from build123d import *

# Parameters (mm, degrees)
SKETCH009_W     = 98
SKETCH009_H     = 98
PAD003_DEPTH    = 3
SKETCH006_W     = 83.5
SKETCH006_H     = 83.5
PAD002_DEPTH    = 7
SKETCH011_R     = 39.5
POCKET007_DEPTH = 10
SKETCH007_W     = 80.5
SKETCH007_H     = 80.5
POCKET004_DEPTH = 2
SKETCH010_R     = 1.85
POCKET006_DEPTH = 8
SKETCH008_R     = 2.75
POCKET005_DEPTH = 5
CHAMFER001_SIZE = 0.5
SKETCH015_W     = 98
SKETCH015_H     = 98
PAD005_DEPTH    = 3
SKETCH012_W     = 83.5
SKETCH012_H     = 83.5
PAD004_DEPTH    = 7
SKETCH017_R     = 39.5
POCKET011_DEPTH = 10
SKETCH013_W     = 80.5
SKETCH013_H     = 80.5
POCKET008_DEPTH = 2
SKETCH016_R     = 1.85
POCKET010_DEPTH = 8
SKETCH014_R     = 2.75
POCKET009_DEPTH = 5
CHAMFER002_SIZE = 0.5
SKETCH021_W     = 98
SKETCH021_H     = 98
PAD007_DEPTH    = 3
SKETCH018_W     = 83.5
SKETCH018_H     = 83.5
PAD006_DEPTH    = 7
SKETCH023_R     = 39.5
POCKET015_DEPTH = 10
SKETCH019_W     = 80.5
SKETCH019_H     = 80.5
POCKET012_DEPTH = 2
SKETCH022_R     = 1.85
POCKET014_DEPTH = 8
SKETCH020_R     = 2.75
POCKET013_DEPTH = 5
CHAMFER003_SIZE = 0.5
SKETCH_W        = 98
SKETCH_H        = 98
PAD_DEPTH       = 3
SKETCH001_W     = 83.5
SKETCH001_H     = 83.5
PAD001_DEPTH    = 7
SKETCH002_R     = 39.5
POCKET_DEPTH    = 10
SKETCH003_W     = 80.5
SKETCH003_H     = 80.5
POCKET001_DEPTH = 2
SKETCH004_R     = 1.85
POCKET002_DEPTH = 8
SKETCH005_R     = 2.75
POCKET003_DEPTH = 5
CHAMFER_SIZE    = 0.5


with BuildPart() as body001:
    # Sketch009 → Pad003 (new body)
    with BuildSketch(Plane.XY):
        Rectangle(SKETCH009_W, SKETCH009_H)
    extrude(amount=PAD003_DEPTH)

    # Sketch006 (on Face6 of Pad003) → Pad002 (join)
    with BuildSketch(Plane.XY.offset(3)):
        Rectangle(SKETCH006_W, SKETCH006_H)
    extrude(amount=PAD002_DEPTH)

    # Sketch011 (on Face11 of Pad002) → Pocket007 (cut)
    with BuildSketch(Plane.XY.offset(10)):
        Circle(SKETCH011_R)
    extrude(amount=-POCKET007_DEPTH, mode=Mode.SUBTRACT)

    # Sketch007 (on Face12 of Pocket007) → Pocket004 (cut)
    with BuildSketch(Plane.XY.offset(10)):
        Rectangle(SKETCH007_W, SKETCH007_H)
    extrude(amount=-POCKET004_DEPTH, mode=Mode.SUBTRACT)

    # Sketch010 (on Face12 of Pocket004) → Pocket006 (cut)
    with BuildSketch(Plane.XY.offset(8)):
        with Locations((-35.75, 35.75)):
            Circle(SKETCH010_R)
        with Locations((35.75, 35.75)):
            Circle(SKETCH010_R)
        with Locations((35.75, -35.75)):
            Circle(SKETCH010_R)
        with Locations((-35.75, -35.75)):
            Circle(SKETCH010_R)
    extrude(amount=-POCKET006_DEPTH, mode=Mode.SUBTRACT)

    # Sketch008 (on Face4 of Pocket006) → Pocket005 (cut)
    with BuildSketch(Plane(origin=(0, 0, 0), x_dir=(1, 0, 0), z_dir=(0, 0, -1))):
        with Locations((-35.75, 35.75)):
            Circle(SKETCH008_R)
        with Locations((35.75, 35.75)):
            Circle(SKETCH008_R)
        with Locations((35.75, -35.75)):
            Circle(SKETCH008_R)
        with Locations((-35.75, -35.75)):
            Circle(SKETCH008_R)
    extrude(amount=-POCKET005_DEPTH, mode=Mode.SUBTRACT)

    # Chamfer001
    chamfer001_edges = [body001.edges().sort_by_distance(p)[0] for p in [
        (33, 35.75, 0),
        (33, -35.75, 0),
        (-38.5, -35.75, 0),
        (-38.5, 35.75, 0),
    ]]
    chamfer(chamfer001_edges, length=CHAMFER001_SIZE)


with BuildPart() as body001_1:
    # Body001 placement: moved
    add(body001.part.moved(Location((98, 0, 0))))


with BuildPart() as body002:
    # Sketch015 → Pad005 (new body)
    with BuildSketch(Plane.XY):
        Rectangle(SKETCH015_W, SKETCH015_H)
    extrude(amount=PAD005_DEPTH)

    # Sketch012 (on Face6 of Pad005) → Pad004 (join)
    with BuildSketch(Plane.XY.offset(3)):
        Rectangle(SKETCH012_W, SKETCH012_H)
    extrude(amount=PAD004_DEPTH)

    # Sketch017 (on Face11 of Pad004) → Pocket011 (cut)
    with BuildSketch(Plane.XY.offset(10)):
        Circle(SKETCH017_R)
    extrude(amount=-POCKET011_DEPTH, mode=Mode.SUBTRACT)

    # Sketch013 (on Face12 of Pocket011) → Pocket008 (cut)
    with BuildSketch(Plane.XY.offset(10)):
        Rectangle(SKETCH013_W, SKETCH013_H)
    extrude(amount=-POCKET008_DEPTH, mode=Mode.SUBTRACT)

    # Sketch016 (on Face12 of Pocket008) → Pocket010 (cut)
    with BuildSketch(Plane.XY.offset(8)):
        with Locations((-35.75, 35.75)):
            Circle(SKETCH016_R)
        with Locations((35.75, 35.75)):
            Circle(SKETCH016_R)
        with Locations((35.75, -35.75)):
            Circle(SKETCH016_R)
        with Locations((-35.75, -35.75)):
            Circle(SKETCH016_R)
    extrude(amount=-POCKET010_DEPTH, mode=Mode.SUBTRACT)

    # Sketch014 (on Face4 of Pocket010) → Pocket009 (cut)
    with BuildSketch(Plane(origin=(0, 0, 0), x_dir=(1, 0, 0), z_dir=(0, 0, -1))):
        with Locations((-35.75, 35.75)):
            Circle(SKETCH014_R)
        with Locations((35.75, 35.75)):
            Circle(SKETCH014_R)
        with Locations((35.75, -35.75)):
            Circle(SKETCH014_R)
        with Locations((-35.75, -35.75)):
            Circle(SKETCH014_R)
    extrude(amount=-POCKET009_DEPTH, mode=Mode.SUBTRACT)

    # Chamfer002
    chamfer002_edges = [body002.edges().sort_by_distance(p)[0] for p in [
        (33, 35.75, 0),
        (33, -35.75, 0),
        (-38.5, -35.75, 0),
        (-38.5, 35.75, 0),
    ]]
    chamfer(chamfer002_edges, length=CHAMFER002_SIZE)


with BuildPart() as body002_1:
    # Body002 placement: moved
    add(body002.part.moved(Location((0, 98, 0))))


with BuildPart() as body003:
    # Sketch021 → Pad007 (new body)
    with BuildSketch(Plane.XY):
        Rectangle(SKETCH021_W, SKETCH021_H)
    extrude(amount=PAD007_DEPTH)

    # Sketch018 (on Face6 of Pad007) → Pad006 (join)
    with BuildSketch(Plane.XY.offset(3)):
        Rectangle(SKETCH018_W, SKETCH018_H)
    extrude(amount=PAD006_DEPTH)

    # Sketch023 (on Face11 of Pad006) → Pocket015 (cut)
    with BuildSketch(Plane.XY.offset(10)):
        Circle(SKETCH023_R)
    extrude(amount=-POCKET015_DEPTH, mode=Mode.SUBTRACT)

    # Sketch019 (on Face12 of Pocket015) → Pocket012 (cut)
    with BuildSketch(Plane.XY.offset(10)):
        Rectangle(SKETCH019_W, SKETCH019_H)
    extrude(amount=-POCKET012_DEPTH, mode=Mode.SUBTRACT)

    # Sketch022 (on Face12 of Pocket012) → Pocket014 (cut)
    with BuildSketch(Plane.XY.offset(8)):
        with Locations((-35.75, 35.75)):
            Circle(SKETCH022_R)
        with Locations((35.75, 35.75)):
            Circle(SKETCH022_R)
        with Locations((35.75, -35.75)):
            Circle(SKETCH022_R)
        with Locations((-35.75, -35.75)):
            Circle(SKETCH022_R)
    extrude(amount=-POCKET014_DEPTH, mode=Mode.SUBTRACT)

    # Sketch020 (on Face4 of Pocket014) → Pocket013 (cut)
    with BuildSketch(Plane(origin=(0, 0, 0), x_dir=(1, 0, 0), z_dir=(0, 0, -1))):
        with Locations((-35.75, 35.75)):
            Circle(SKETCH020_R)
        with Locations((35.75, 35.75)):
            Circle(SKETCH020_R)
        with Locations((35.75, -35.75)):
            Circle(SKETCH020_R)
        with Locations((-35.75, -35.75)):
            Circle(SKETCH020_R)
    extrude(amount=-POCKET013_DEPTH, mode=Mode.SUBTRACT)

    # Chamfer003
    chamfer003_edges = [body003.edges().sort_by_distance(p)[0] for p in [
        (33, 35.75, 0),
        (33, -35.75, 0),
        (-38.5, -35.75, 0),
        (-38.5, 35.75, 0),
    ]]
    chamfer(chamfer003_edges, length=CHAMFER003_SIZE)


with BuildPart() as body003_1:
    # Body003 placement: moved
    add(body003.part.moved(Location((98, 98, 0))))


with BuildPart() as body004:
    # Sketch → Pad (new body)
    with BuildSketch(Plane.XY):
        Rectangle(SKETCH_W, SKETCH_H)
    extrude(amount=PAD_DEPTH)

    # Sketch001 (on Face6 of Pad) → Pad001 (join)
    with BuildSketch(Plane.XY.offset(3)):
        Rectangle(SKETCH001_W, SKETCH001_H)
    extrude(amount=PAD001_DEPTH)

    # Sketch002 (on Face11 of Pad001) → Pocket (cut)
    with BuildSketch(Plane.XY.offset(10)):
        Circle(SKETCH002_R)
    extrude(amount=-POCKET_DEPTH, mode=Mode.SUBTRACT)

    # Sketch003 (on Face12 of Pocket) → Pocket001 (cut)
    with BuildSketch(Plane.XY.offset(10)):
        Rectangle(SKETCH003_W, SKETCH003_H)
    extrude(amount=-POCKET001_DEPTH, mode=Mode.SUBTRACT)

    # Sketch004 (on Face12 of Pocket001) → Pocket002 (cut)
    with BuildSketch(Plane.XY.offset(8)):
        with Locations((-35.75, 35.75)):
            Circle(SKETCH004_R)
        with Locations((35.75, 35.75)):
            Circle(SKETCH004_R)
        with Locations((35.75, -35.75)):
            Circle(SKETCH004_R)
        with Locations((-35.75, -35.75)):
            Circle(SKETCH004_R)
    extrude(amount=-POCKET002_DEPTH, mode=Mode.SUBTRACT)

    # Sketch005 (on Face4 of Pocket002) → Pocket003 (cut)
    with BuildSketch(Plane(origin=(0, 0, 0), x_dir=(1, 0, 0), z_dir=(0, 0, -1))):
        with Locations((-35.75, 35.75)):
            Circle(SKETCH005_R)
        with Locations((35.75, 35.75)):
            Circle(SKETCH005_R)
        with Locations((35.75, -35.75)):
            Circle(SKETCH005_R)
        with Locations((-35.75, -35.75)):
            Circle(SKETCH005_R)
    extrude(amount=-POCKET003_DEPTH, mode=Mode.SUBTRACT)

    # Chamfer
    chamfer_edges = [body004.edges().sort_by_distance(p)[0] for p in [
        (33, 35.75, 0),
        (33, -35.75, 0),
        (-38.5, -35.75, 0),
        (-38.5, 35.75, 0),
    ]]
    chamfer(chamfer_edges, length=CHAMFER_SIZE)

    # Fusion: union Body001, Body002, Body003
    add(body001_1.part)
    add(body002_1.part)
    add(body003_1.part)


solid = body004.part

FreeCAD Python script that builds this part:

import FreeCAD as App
import Part
import Sketcher
from FreeCAD import Vector


def edges_at(feature, points):
    """Names of the edges that pass closest to the given points."""
    edges = feature.Shape.Edges
    near = lambda p: min(range(len(edges)), key=lambda i: edges[i].distToShape(Part.Vertex(*p))[0])
    return sorted({f"Edge{near(p) + 1}" for p in points})


def add_polygon(sketch, points):
    """Adds a closed chain of lines whose ends are joined by coincident constraints."""
    first, n = sketch.GeometryCount, len(points)
    for a, b in zip(points, points[1:] + points[:1]):
        sketch.addGeometry(Part.LineSegment(App.Vector(*a, 0), App.Vector(*b, 0)), False)
    for i in range(n):
        sketch.addConstraint(Sketcher.Constraint("Coincident", first + i, 2, first + (i + 1) % n, 1))

doc = App.newDocument("Part")
body = doc.addObject("PartDesign::Body", "Body")

sketch1 = body.newObject("Sketcher::SketchObject", "Sketch")
sketch1.AttachmentSupport = (doc.getObject("XY_Plane"), [""])
sketch1.MapMode = "FlatFace"
add_polygon(sketch1, [(-49, 49), (-49, -49), (49, -49), (49, 49)])
sketch1.addConstraint([
    Sketcher.Constraint("Vertical", 0),
    Sketcher.Constraint("Horizontal", 1),
    Sketcher.Constraint("Vertical", 2),
    Sketcher.Constraint("Horizontal", 3),
    Sketcher.Constraint("Symmetric", 0, 2, 2, 2, -1, 1),
    Sketcher.Constraint("Equal", 3, 0),
    Sketcher.Constraint("DistanceX", 1, 1, 1, 2, 98.0),
])
pad1 = body.newObject("PartDesign::Pad", "Pad")
pad1.Profile = sketch1
pad1.Length = 3

sketch2 = body.newObject("Sketcher::SketchObject", "Sketch001")
sketch2.AttachmentSupport = (doc.getObject("XY_Plane"), [""])
sketch2.MapMode = "FlatFace"
sketch2.AttachmentOffset = App.Placement(Vector(0, 0, 3), App.Rotation())
add_polygon(sketch2, [(-41.75, 41.75), (-41.75, -41.75), (41.75, -41.75), (41.75, 41.75)])
sketch2.addConstraint([
    Sketcher.Constraint("Vertical", 0),
    Sketcher.Constraint("Horizontal", 1),
    Sketcher.Constraint("Vertical", 2),
    Sketcher.Constraint("Horizontal", 3),
    Sketcher.Constraint("Symmetric", 0, 2, 2, 2, -1, 1),
    Sketcher.Constraint("Equal", 3, 0),
    Sketcher.Constraint("DistanceX", 1, 1, 1, 2, 83.5),
])
pad2 = body.newObject("PartDesign::Pad", "Pad001")
pad2.Profile = sketch2
pad2.Length = 7

sketch3 = body.newObject("Sketcher::SketchObject", "Sketch002")
sketch3.AttachmentSupport = (doc.getObject("XY_Plane"), [""])
sketch3.MapMode = "FlatFace"
sketch3.AttachmentOffset = App.Placement(Vector(0, 0, 10), App.Rotation())
sketch3.addGeometry(Part.Circle(Vector(0, 0, 0), Vector(0, 0, 1), 39.5), False)
sketch3.addConstraint([
    Sketcher.Constraint("Coincident", 0, 3, -1, 1),
    Sketcher.Constraint("Diameter", 0, 79.0),
])
pocket1 = body.newObject("PartDesign::Pocket", "Pocket")
pocket1.Profile = sketch3
pocket1.Length = 10

sketch4 = body.newObject("Sketcher::SketchObject", "Sketch003")
sketch4.AttachmentSupport = (doc.getObject("XY_Plane"), [""])
sketch4.MapMode = "FlatFace"
sketch4.AttachmentOffset = App.Placement(Vector(0, 0, 10), App.Rotation())
add_polygon(sketch4, [(-40.25, 40.25), (-40.25, -40.25), (40.25, -40.25), (40.25, 40.25)])
sketch4.addConstraint([
    Sketcher.Constraint("Vertical", 0),
    Sketcher.Constraint("Horizontal", 1),
    Sketcher.Constraint("Vertical", 2),
    Sketcher.Constraint("Horizontal", 3),
    Sketcher.Constraint("Symmetric", 0, 2, 2, 2, -1, 1),
    Sketcher.Constraint("Equal", 3, 0),
    Sketcher.Constraint("DistanceX", 1, 1, 1, 2, 80.5),
])
pocket2 = body.newObject("PartDesign::Pocket", "Pocket001")
pocket2.Profile = sketch4
pocket2.Length = 2

sketch5 = body.newObject("Sketcher::SketchObject", "Sketch004")
sketch5.AttachmentSupport = (doc.getObject("XY_Plane"), [""])
sketch5.MapMode = "FlatFace"
sketch5.AttachmentOffset = App.Placement(Vector(0, 0, 8), App.Rotation())
sketch5.addGeometry([
    Part.Circle(Vector(-35.75, 35.75, 0), Vector(0, 0, 1), 1.85),
    Part.Circle(Vector(35.75, 35.75, 0), Vector(0, 0, 1), 1.85),
    Part.Circle(Vector(35.75, -35.75, 0), Vector(0, 0, 1), 1.85),
    Part.Circle(Vector(-35.75, -35.75, 0), Vector(0, 0, 1), 1.85),
], False)
sketch5.addConstraint([
    Sketcher.Constraint("Equal", 0, 1),
    Sketcher.Constraint("Equal", 1, 2),
    Sketcher.Constraint("Equal", 2, 3),
    Sketcher.Constraint("Symmetric", 0, 3, 2, 3, -1, 1),
    Sketcher.Constraint("Symmetric", 1, 3, 3, 3, -1, 1),
    Sketcher.Constraint("Symmetric", 0, 3, 1, 3, -2),
    Sketcher.Constraint("Diameter", 0, 3.7),
    Sketcher.Constraint("DistanceX", 0, 3, 1, 3, 71.5),
    Sketcher.Constraint("DistanceY", 2, 3, 1, 3, 71.5),
])
pocket3 = body.newObject("PartDesign::Pocket", "Pocket002")
pocket3.Profile = sketch5
pocket3.Length = 8

sketch6 = body.newObject("Sketcher::SketchObject", "Sketch005")
sketch6.AttachmentSupport = (doc.getObject("XY_Plane"), [""])
sketch6.MapMode = "FlatFace"
sketch6.addGeometry([
    Part.Circle(Vector(-35.75, -35.75, 0), Vector(0, 0, 1), 2.75),
    Part.Circle(Vector(35.75, -35.75, 0), Vector(0, 0, 1), 2.75),
    Part.Circle(Vector(35.75, 35.75, 0), Vector(0, 0, 1), 2.75),
    Part.Circle(Vector(-35.75, 35.75, 0), Vector(0, 0, 1), 2.75),
], False)
sketch6.addConstraint([
    Sketcher.Constraint("Equal", 0, 1),
    Sketcher.Constraint("Equal", 1, 2),
    Sketcher.Constraint("Equal", 2, 3),
    Sketcher.Constraint("Symmetric", 0, 3, 2, 3, -1, 1),
    Sketcher.Constraint("Symmetric", 1, 3, 3, 3, -1, 1),
    Sketcher.Constraint("Symmetric", 0, 3, 1, 3, -2),
    Sketcher.Constraint("Diameter", 0, 5.5),
    Sketcher.Constraint("DistanceX", 0, 3, 1, 3, 71.5),
    Sketcher.Constraint("DistanceY", 1, 3, 2, 3, 71.5),
])
pocket4 = body.newObject("PartDesign::Pocket", "Pocket003")
pocket4.Profile = sketch6
pocket4.Length = 5
pocket4.Reversed = True
doc.recompute()

chamfer = body.newObject("PartDesign::Chamfer", "Chamfer")
chamfer.Base = (pocket4, edges_at(pocket4, [
    (33, 35.75, 0),
    (33, -35.75, 0),
    (-38.5, -35.75, 0),
    (-38.5, 35.75, 0),
]))
chamfer.Size = 0.5
body2 = doc.addObject("PartDesign::Body", "Body001")
doc.recompute()

body.Placement = App.Placement(Vector(98, 0, 0), App.Rotation(Vector(0, 0, 1), 0))
boolean = body2.newObject("PartDesign::Boolean", "Boolean")
boolean.Type = "Fuse"
boolean.addObjects([body])
body3 = doc.addObject("PartDesign::Body", "Body002")

sketch7 = body3.newObject("Sketcher::SketchObject", "Sketch006")
sketch7.AttachmentSupport = (doc.getObject("XY_Plane002"), [""])
sketch7.MapMode = "FlatFace"
add_polygon(sketch7, [(-49, 49), (-49, -49), (49, -49), (49, 49)])
sketch7.addConstraint([
    Sketcher.Constraint("Vertical", 0),
    Sketcher.Constraint("Horizontal", 1),
    Sketcher.Constraint("Vertical", 2),
    Sketcher.Constraint("Horizontal", 3),
    Sketcher.Constraint("Symmetric", 0, 2, 2, 2, -1, 1),
    Sketcher.Constraint("Equal", 3, 0),
    Sketcher.Constraint("DistanceX", 1, 1, 1, 2, 98.0),
])
pad3 = body3.newObject("PartDesign::Pad", "Pad002")
pad3.Profile = sketch7
pad3.Length = 3

sketch8 = body3.newObject("Sketcher::SketchObject", "Sketch007")
sketch8.AttachmentSupport = (doc.getObject("XY_Plane002"), [""])
sketch8.MapMode = "FlatFace"
sketch8.AttachmentOffset = App.Placement(Vector(0, 0, 3), App.Rotation())
add_polygon(sketch8, [(-41.75, 41.75), (-41.75, -41.75), (41.75, -41.75), (41.75, 41.75)])
sketch8.addConstraint([
    Sketcher.Constraint("Vertical", 0),
    Sketcher.Constraint("Horizontal", 1),
    Sketcher.Constraint("Vertical", 2),
    Sketcher.Constraint("Horizontal", 3),
    Sketcher.Constraint("Symmetric", 0, 2, 2, 2, -1, 1),
    Sketcher.Constraint("Equal", 3, 0),
    Sketcher.Constraint("DistanceX", 1, 1, 1, 2, 83.5),
])
pad4 = body3.newObject("PartDesign::Pad", "Pad003")
pad4.Profile = sketch8
pad4.Length = 7

sketch9 = body3.newObject("Sketcher::SketchObject", "Sketch008")
sketch9.AttachmentSupport = (doc.getObject("XY_Plane002"), [""])
sketch9.MapMode = "FlatFace"
sketch9.AttachmentOffset = App.Placement(Vector(0, 0, 10), App.Rotation())
sketch9.addGeometry(Part.Circle(Vector(0, 0, 0), Vector(0, 0, 1), 39.5), False)
sketch9.addConstraint([
    Sketcher.Constraint("Coincident", 0, 3, -1, 1),
    Sketcher.Constraint("Diameter", 0, 79.0),
])
pocket5 = body3.newObject("PartDesign::Pocket", "Pocket004")
pocket5.Profile = sketch9
pocket5.Length = 10

sketch10 = body3.newObject("Sketcher::SketchObject", "Sketch009")
sketch10.AttachmentSupport = (doc.getObject("XY_Plane002"), [""])
sketch10.MapMode = "FlatFace"
sketch10.AttachmentOffset = App.Placement(Vector(0, 0, 10), App.Rotation())
add_polygon(sketch10, [(-40.25, 40.25), (-40.25, -40.25), (40.25, -40.25), (40.25, 40.25)])
sketch10.addConstraint([
    Sketcher.Constraint("Vertical", 0),
    Sketcher.Constraint("Horizontal", 1),
    Sketcher.Constraint("Vertical", 2),
    Sketcher.Constraint("Horizontal", 3),
    Sketcher.Constraint("Symmetric", 0, 2, 2, 2, -1, 1),
    Sketcher.Constraint("Equal", 3, 0),
    Sketcher.Constraint("DistanceX", 1, 1, 1, 2, 80.5),
])
pocket6 = body3.newObject("PartDesign::Pocket", "Pocket005")
pocket6.Profile = sketch10
pocket6.Length = 2

sketch11 = body3.newObject("Sketcher::SketchObject", "Sketch010")
sketch11.AttachmentSupport = (doc.getObject("XY_Plane002"), [""])
sketch11.MapMode = "FlatFace"
sketch11.AttachmentOffset = App.Placement(Vector(0, 0, 8), App.Rotation())
sketch11.addGeometry([
    Part.Circle(Vector(-35.75, 35.75, 0), Vector(0, 0, 1), 1.85),
    Part.Circle(Vector(35.75, 35.75, 0), Vector(0, 0, 1), 1.85),
    Part.Circle(Vector(35.75, -35.75, 0), Vector(0, 0, 1), 1.85),
    Part.Circle(Vector(-35.75, -35.75, 0), Vector(0, 0, 1), 1.85),
], False)
sketch11.addConstraint([
    Sketcher.Constraint("Equal", 0, 1),
    Sketcher.Constraint("Equal", 1, 2),
    Sketcher.Constraint("Equal", 2, 3),
    Sketcher.Constraint("Symmetric", 0, 3, 2, 3, -1, 1),
    Sketcher.Constraint("Symmetric", 1, 3, 3, 3, -1, 1),
    Sketcher.Constraint("Symmetric", 0, 3, 1, 3, -2),
    Sketcher.Constraint("Diameter", 0, 3.7),
    Sketcher.Constraint("DistanceX", 0, 3, 1, 3, 71.5),
    Sketcher.Constraint("DistanceY", 2, 3, 1, 3, 71.5),
])
pocket7 = body3.newObject("PartDesign::Pocket", "Pocket006")
pocket7.Profile = sketch11
pocket7.Length = 8

sketch12 = body3.newObject("Sketcher::SketchObject", "Sketch011")
sketch12.AttachmentSupport = (doc.getObject("XY_Plane002"), [""])
sketch12.MapMode = "FlatFace"
sketch12.addGeometry([
    Part.Circle(Vector(-35.75, -35.75, 0), Vector(0, 0, 1), 2.75),
    Part.Circle(Vector(35.75, -35.75, 0), Vector(0, 0, 1), 2.75),
    Part.Circle(Vector(35.75, 35.75, 0), Vector(0, 0, 1), 2.75),
    Part.Circle(Vector(-35.75, 35.75, 0), Vector(0, 0, 1), 2.75),
], False)
sketch12.addConstraint([
    Sketcher.Constraint("Equal", 0, 1),
    Sketcher.Constraint("Equal", 1, 2),
    Sketcher.Constraint("Equal", 2, 3),
    Sketcher.Constraint("Symmetric", 0, 3, 2, 3, -1, 1),
    Sketcher.Constraint("Symmetric", 1, 3, 3, 3, -1, 1),
    Sketcher.Constraint("Symmetric", 0, 3, 1, 3, -2),
    Sketcher.Constraint("Diameter", 0, 5.5),
    Sketcher.Constraint("DistanceX", 0, 3, 1, 3, 71.5),
    Sketcher.Constraint("DistanceY", 1, 3, 2, 3, 71.5),
])
pocket8 = body3.newObject("PartDesign::Pocket", "Pocket007")
pocket8.Profile = sketch12
pocket8.Length = 5
pocket8.Reversed = True
doc.recompute()

chamfer2 = body3.newObject("PartDesign::Chamfer", "Chamfer001")
chamfer2.Base = (pocket8, edges_at(pocket8, [
    (33, 35.75, 0),
    (33, -35.75, 0),
    (-38.5, -35.75, 0),
    (-38.5, 35.75, 0),
]))
chamfer2.Size = 0.5
body4 = doc.addObject("PartDesign::Body", "Body003")
doc.recompute()

body3.Placement = App.Placement(Vector(0, 98, 0), App.Rotation(Vector(0, 0, 1), 0))
boolean2 = body4.newObject("PartDesign::Boolean", "Boolean001")
boolean2.Type = "Fuse"
boolean2.addObjects([body3])
body5 = doc.addObject("PartDesign::Body", "Body004")

sketch13 = body5.newObject("Sketcher::SketchObject", "Sketch012")
sketch13.AttachmentSupport = (doc.getObject("XY_Plane004"), [""])
sketch13.MapMode = "FlatFace"
add_polygon(sketch13, [(-49, 49), (-49, -49), (49, -49), (49, 49)])
sketch13.addConstraint([
    Sketcher.Constraint("Vertical", 0),
    Sketcher.Constraint("Horizontal", 1),
    Sketcher.Constraint("Vertical", 2),
    Sketcher.Constraint("Horizontal", 3),
    Sketcher.Constraint("Symmetric", 0, 2, 2, 2, -1, 1),
    Sketcher.Constraint("Equal", 3, 0),
    Sketcher.Constraint("DistanceX", 1, 1, 1, 2, 98.0),
])
pad5 = body5.newObject("PartDesign::Pad", "Pad004")
pad5.Profile = sketch13
pad5.Length = 3

sketch14 = body5.newObject("Sketcher::SketchObject", "Sketch013")
sketch14.AttachmentSupport = (doc.getObject("XY_Plane004"), [""])
sketch14.MapMode = "FlatFace"
sketch14.AttachmentOffset = App.Placement(Vector(0, 0, 3), App.Rotation())
add_polygon(sketch14, [(-41.75, 41.75), (-41.75, -41.75), (41.75, -41.75), (41.75, 41.75)])
sketch14.addConstraint([
    Sketcher.Constraint("Vertical", 0),
    Sketcher.Constraint("Horizontal", 1),
    Sketcher.Constraint("Vertical", 2),
    Sketcher.Constraint("Horizontal", 3),
    Sketcher.Constraint("Symmetric", 0, 2, 2, 2, -1, 1),
    Sketcher.Constraint("Equal", 3, 0),
    Sketcher.Constraint("DistanceX", 1, 1, 1, 2, 83.5),
])
pad6 = body5.newObject("PartDesign::Pad", "Pad005")
pad6.Profile = sketch14
pad6.Length = 7

sketch15 = body5.newObject("Sketcher::SketchObject", "Sketch014")
sketch15.AttachmentSupport = (doc.getObject("XY_Plane004"), [""])
sketch15.MapMode = "FlatFace"
sketch15.AttachmentOffset = App.Placement(Vector(0, 0, 10), App.Rotation())
sketch15.addGeometry(Part.Circle(Vector(0, 0, 0), Vector(0, 0, 1), 39.5), False)
sketch15.addConstraint([
    Sketcher.Constraint("Coincident", 0, 3, -1, 1),
    Sketcher.Constraint("Diameter", 0, 79.0),
])
pocket9 = body5.newObject("PartDesign::Pocket", "Pocket008")
pocket9.Profile = sketch15
pocket9.Length = 10

sketch16 = body5.newObject("Sketcher::SketchObject", "Sketch015")
sketch16.AttachmentSupport = (doc.getObject("XY_Plane004"), [""])
sketch16.MapMode = "FlatFace"
sketch16.AttachmentOffset = App.Placement(Vector(0, 0, 10), App.Rotation())
add_polygon(sketch16, [(-40.25, 40.25), (-40.25, -40.25), (40.25, -40.25), (40.25, 40.25)])
sketch16.addConstraint([
    Sketcher.Constraint("Vertical", 0),
    Sketcher.Constraint("Horizontal", 1),
    Sketcher.Constraint("Vertical", 2),
    Sketcher.Constraint("Horizontal", 3),
    Sketcher.Constraint("Symmetric", 0, 2, 2, 2, -1, 1),
    Sketcher.Constraint("Equal", 3, 0),
    Sketcher.Constraint("DistanceX", 1, 1, 1, 2, 80.5),
])
pocket10 = body5.newObject("PartDesign::Pocket", "Pocket009")
pocket10.Profile = sketch16
pocket10.Length = 2

sketch17 = body5.newObject("Sketcher::SketchObject", "Sketch016")
sketch17.AttachmentSupport = (doc.getObject("XY_Plane004"), [""])
sketch17.MapMode = "FlatFace"
sketch17.AttachmentOffset = App.Placement(Vector(0, 0, 8), App.Rotation())
sketch17.addGeometry([
    Part.Circle(Vector(-35.75, 35.75, 0), Vector(0, 0, 1), 1.85),
    Part.Circle(Vector(35.75, 35.75, 0), Vector(0, 0, 1), 1.85),
    Part.Circle(Vector(35.75, -35.75, 0), Vector(0, 0, 1), 1.85),
    Part.Circle(Vector(-35.75, -35.75, 0), Vector(0, 0, 1), 1.85),
], False)
sketch17.addConstraint([
    Sketcher.Constraint("Equal", 0, 1),
    Sketcher.Constraint("Equal", 1, 2),
    Sketcher.Constraint("Equal", 2, 3),
    Sketcher.Constraint("Symmetric", 0, 3, 2, 3, -1, 1),
    Sketcher.Constraint("Symmetric", 1, 3, 3, 3, -1, 1),
    Sketcher.Constraint("Symmetric", 0, 3, 1, 3, -2),
    Sketcher.Constraint("Diameter", 0, 3.7),
    Sketcher.Constraint("DistanceX", 0, 3, 1, 3, 71.5),
    Sketcher.Constraint("DistanceY", 2, 3, 1, 3, 71.5),
])
pocket11 = body5.newObject("PartDesign::Pocket", "Pocket010")
pocket11.Profile = sketch17
pocket11.Length = 8

sketch18 = body5.newObject("Sketcher::SketchObject", "Sketch017")
sketch18.AttachmentSupport = (doc.getObject("XY_Plane004"), [""])
sketch18.MapMode = "FlatFace"
sketch18.addGeometry([
    Part.Circle(Vector(-35.75, -35.75, 0), Vector(0, 0, 1), 2.75),
    Part.Circle(Vector(35.75, -35.75, 0), Vector(0, 0, 1), 2.75),
    Part.Circle(Vector(35.75, 35.75, 0), Vector(0, 0, 1), 2.75),
    Part.Circle(Vector(-35.75, 35.75, 0), Vector(0, 0, 1), 2.75),
], False)
sketch18.addConstraint([
    Sketcher.Constraint("Equal", 0, 1),
    Sketcher.Constraint("Equal", 1, 2),
    Sketcher.Constraint("Equal", 2, 3),
    Sketcher.Constraint("Symmetric", 0, 3, 2, 3, -1, 1),
    Sketcher.Constraint("Symmetric", 1, 3, 3, 3, -1, 1),
    Sketcher.Constraint("Symmetric", 0, 3, 1, 3, -2),
    Sketcher.Constraint("Diameter", 0, 5.5),
    Sketcher.Constraint("DistanceX", 0, 3, 1, 3, 71.5),
    Sketcher.Constraint("DistanceY", 1, 3, 2, 3, 71.5),
])
pocket12 = body5.newObject("PartDesign::Pocket", "Pocket011")
pocket12.Profile = sketch18
pocket12.Length = 5
pocket12.Reversed = True
doc.recompute()

chamfer3 = body5.newObject("PartDesign::Chamfer", "Chamfer002")
chamfer3.Base = (pocket12, edges_at(pocket12, [
    (33, 35.75, 0),
    (33, -35.75, 0),
    (-38.5, -35.75, 0),
    (-38.5, 35.75, 0),
]))
chamfer3.Size = 0.5
body6 = doc.addObject("PartDesign::Body", "Body005")
doc.recompute()

body5.Placement = App.Placement(Vector(98, 98, 0), App.Rotation(Vector(0, 0, 1), 0))
boolean3 = body6.newObject("PartDesign::Boolean", "Boolean002")
boolean3.Type = "Fuse"
boolean3.addObjects([body5])
body7 = doc.addObject("PartDesign::Body", "Body006")

sketch19 = body7.newObject("Sketcher::SketchObject", "Sketch018")
sketch19.AttachmentSupport = (doc.getObject("XY_Plane006"), [""])
sketch19.MapMode = "FlatFace"
add_polygon(sketch19, [(-49, 49), (-49, -49), (49, -49), (49, 49)])
sketch19.addConstraint([
    Sketcher.Constraint("Vertical", 0),
    Sketcher.Constraint("Horizontal", 1),
    Sketcher.Constraint("Vertical", 2),
    Sketcher.Constraint("Horizontal", 3),
    Sketcher.Constraint("Symmetric", 0, 2, 2, 2, -1, 1),
    Sketcher.Constraint("Equal", 3, 0),
    Sketcher.Constraint("DistanceX", 1, 1, 1, 2, 98.0),
])
pad7 = body7.newObject("PartDesign::Pad", "Pad006")
pad7.Profile = sketch19
pad7.Length = 3

sketch20 = body7.newObject("Sketcher::SketchObject", "Sketch019")
sketch20.AttachmentSupport = (doc.getObject("XY_Plane006"), [""])
sketch20.MapMode = "FlatFace"
sketch20.AttachmentOffset = App.Placement(Vector(0, 0, 3), App.Rotation())
add_polygon(sketch20, [(-41.75, 41.75), (-41.75, -41.75), (41.75, -41.75), (41.75, 41.75)])
sketch20.addConstraint([
    Sketcher.Constraint("Vertical", 0),
    Sketcher.Constraint("Horizontal", 1),
    Sketcher.Constraint("Vertical", 2),
    Sketcher.Constraint("Horizontal", 3),
    Sketcher.Constraint("Symmetric", 0, 2, 2, 2, -1, 1),
    Sketcher.Constraint("Equal", 3, 0),
    Sketcher.Constraint("DistanceX", 1, 1, 1, 2, 83.5),
])
pad8 = body7.newObject("PartDesign::Pad", "Pad007")
pad8.Profile = sketch20
pad8.Length = 7

sketch21 = body7.newObject("Sketcher::SketchObject", "Sketch020")
sketch21.AttachmentSupport = (doc.getObject("XY_Plane006"), [""])
sketch21.MapMode = "FlatFace"
sketch21.AttachmentOffset = App.Placement(Vector(0, 0, 10), App.Rotation())
sketch21.addGeometry(Part.Circle(Vector(0, 0, 0), Vector(0, 0, 1), 39.5), False)
sketch21.addConstraint([
    Sketcher.Constraint("Coincident", 0, 3, -1, 1),
    Sketcher.Constraint("Diameter", 0, 79.0),
])
pocket13 = body7.newObject("PartDesign::Pocket", "Pocket012")
pocket13.Profile = sketch21
pocket13.Length = 10

sketch22 = body7.newObject("Sketcher::SketchObject", "Sketch021")
sketch22.AttachmentSupport = (doc.getObject("XY_Plane006"), [""])
sketch22.MapMode = "FlatFace"
sketch22.AttachmentOffset = App.Placement(Vector(0, 0, 10), App.Rotation())
add_polygon(sketch22, [(-40.25, 40.25), (-40.25, -40.25), (40.25, -40.25), (40.25, 40.25)])
sketch22.addConstraint([
    Sketcher.Constraint("Vertical", 0),
    Sketcher.Constraint("Horizontal", 1),
    Sketcher.Constraint("Vertical", 2),
    Sketcher.Constraint("Horizontal", 3),
    Sketcher.Constraint("Symmetric", 0, 2, 2, 2, -1, 1),
    Sketcher.Constraint("Equal", 3, 0),
    Sketcher.Constraint("DistanceX", 1, 1, 1, 2, 80.5),
])
pocket14 = body7.newObject("PartDesign::Pocket", "Pocket013")
pocket14.Profile = sketch22
pocket14.Length = 2

sketch23 = body7.newObject("Sketcher::SketchObject", "Sketch022")
sketch23.AttachmentSupport = (doc.getObject("XY_Plane006"), [""])
sketch23.MapMode = "FlatFace"
sketch23.AttachmentOffset = App.Placement(Vector(0, 0, 8), App.Rotation())
sketch23.addGeometry([
    Part.Circle(Vector(-35.75, 35.75, 0), Vector(0, 0, 1), 1.85),
    Part.Circle(Vector(35.75, 35.75, 0), Vector(0, 0, 1), 1.85),
    Part.Circle(Vector(35.75, -35.75, 0), Vector(0, 0, 1), 1.85),
    Part.Circle(Vector(-35.75, -35.75, 0), Vector(0, 0, 1), 1.85),
], False)
sketch23.addConstraint([
    Sketcher.Constraint("Equal", 0, 1),
    Sketcher.Constraint("Equal", 1, 2),
    Sketcher.Constraint("Equal", 2, 3),
    Sketcher.Constraint("Symmetric", 0, 3, 2, 3, -1, 1),
    Sketcher.Constraint("Symmetric", 1, 3, 3, 3, -1, 1),
    Sketcher.Constraint("Symmetric", 0, 3, 1, 3, -2),
    Sketcher.Constraint("Diameter", 0, 3.7),
    Sketcher.Constraint("DistanceX", 0, 3, 1, 3, 71.5),
    Sketcher.Constraint("DistanceY", 2, 3, 1, 3, 71.5),
])
pocket15 = body7.newObject("PartDesign::Pocket", "Pocket014")
pocket15.Profile = sketch23
pocket15.Length = 8

sketch24 = body7.newObject("Sketcher::SketchObject", "Sketch023")
sketch24.AttachmentSupport = (doc.getObject("XY_Plane006"), [""])
sketch24.MapMode = "FlatFace"
sketch24.addGeometry([
    Part.Circle(Vector(-35.75, -35.75, 0), Vector(0, 0, 1), 2.75),
    Part.Circle(Vector(35.75, -35.75, 0), Vector(0, 0, 1), 2.75),
    Part.Circle(Vector(35.75, 35.75, 0), Vector(0, 0, 1), 2.75),
    Part.Circle(Vector(-35.75, 35.75, 0), Vector(0, 0, 1), 2.75),
], False)
sketch24.addConstraint([
    Sketcher.Constraint("Equal", 0, 1),
    Sketcher.Constraint("Equal", 1, 2),
    Sketcher.Constraint("Equal", 2, 3),
    Sketcher.Constraint("Symmetric", 0, 3, 2, 3, -1, 1),
    Sketcher.Constraint("Symmetric", 1, 3, 3, 3, -1, 1),
    Sketcher.Constraint("Symmetric", 0, 3, 1, 3, -2),
    Sketcher.Constraint("Diameter", 0, 5.5),
    Sketcher.Constraint("DistanceX", 0, 3, 1, 3, 71.5),
    Sketcher.Constraint("DistanceY", 1, 3, 2, 3, 71.5),
])
pocket16 = body7.newObject("PartDesign::Pocket", "Pocket015")
pocket16.Profile = sketch24
pocket16.Length = 5
pocket16.Reversed = True
doc.recompute()

chamfer4 = body7.newObject("PartDesign::Chamfer", "Chamfer003")
chamfer4.Base = (pocket16, edges_at(pocket16, [
    (33, 35.75, 0),
    (33, -35.75, 0),
    (-38.5, -35.75, 0),
    (-38.5, 35.75, 0),
]))
chamfer4.Size = 0.5
doc.recompute()

boolean4 = body7.newObject("PartDesign::Boolean", "Boolean003")
boolean4.Type = "Fuse"
boolean4.addObjects([body2])
doc.recompute()

boolean5 = body7.newObject("PartDesign::Boolean", "Boolean004")
boolean5.Type = "Fuse"
boolean5.addObjects([body4])
doc.recompute()

boolean6 = body7.newObject("PartDesign::Boolean", "Boolean005")
boolean6.Type = "Fuse"
boolean6.addObjects([body6])

doc.recompute()
